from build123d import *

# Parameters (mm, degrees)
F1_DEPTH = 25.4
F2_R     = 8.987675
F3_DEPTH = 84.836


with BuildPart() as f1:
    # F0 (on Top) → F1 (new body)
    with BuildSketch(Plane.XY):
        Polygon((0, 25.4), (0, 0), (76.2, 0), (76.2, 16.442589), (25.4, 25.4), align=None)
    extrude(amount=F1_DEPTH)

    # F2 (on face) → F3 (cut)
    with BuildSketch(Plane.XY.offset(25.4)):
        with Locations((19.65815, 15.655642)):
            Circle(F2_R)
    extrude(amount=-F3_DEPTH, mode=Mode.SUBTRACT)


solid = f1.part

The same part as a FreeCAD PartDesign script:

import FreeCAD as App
import Part
import Sketcher

V = App.Vector
Q = App.Units.Quantity


def add_polygon(sketch, points):
    """Adds a closed chain of lines whose ends are joined by coincident constraints."""
    first, n = sketch.GeometryCount, len(points)
    for a, b in zip(points, points[1:] + points[:1]):
        sketch.addGeometry(Part.LineSegment(App.Vector(*a, 0), App.Vector(*b, 0)), False)
    for i in range(n):
        sketch.addConstraint(Sketcher.Constraint("Coincident", first + i, 2, first + (i + 1) % n, 1))

doc = App.newDocument("Part")
params = doc.addObject("Spreadsheet::Sheet", "Params")
for row, (alias, value) in enumerate([
    ("sketch1_width", "3 in"),
    ("sketch1_width2", "1 in"),
    ("pad1_length", "1 in"),
    ("pocket1_length", "3.34 in"),
], start=1):
    params.set(f"A{row}", alias)
    params.set(f"B{row}", "=" + value)
    params.setAlias(f"B{row}", alias)

body = doc.addObject("PartDesign::Body", "Body")

# Sketch on XY plane
sketch1 = doc.addObject("Sketcher::SketchObject", "Sketch")
body.addObject(sketch1)
sketch1.AttachmentSupport = (doc.XY_Plane, [""])
sketch1.MapMode = "FlatFace"
add_polygon(sketch1, [(0, 25), (0, 0), (76, 0), (76, 16), (25, 25)])  # lines 0-4
sketch1.addConstraint([
    Sketcher.Constraint("Vertical", 0),
    Sketcher.Constraint("Horizontal", 1),
    Sketcher.Constraint("Vertical", 2),
    Sketcher.Constraint("Horizontal", 4),
    Sketcher.Constraint("Coincident", 0, 2, -1, 1),
    Sketcher.Constraint("Equal", 4, 0),
    Sketcher.Constraint("DistanceX", 1, 1, 1, 2, Q("3 in")),
    Sketcher.Constraint("DistanceX", 4, 2, 4, 1, Q("1 in")),
    Sketcher.Constraint("Angle", 3, Q("170 deg")),
])
sketch1.setExpression("Constraints[11]", "Params.sketch1_width")
sketch1.setExpression("Constraints[12]", "Params.sketch1_width2")
pad1 = doc.addObject("PartDesign::Pad", "Pad")
body.addObject(pad1)
pad1.Profile = sketch1
pad1.setExpression("Length", "Params.pad1_length")

# Sketch on XY plane
sketch2 = doc.addObject("Sketcher::SketchObject", "Sketch001")
body.addObject(sketch2)
sketch2.AttachmentSupport = (doc.XY_Plane, [""])
sketch2.MapMode = "FlatFace"
sketch2.AttachmentOffset = App.Placement(V(0, 0, 1 * 25.4), App.Rotation())
sketch2.addGeometry(Part.Circle(V(20, 16, 0), V(0, 0, 1), 9), False)
sketch2.addConstraint([
    Sketcher.Constraint("Diameter", 0, 17.97535),
    Sketcher.Constraint("DistanceX", -1, 1, 0, 3, 19.65815),
    Sketcher.Constraint("DistanceY", -1, 1, 0, 3, 15.655642),
])
pocket1 = doc.addObject("PartDesign::Pocket", "Pocket")
body.addObject(pocket1)
pocket1.Profile = sketch2
pocket1.setExpression("Length", "Params.pocket1_length")

doc.recompute()
